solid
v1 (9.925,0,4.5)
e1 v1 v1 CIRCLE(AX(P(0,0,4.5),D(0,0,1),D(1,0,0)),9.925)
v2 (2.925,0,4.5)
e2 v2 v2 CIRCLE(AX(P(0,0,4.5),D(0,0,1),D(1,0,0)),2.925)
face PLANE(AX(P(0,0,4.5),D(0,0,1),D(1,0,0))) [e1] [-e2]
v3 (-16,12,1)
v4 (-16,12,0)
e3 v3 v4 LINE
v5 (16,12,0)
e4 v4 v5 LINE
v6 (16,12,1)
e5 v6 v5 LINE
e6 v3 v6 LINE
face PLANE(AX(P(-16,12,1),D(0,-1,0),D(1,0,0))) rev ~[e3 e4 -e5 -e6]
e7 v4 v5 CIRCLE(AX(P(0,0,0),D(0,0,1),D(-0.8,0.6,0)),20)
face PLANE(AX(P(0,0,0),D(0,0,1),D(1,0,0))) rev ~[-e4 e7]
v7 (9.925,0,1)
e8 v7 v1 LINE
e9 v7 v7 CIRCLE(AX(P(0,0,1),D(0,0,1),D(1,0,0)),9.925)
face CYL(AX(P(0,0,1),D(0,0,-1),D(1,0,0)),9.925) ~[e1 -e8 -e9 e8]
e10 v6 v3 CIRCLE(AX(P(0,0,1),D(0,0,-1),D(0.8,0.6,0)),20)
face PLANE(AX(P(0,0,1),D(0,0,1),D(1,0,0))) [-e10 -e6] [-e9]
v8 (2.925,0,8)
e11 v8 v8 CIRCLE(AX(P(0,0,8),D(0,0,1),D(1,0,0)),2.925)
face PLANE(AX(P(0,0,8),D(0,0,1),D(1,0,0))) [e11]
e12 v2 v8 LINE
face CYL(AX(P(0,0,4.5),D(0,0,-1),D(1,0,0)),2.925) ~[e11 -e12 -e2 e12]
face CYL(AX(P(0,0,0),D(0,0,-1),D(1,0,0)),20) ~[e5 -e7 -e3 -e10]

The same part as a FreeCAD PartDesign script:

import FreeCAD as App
import Part
import Sketcher

V = App.Vector
Q = App.Units.Quantity


def add_polygon(sketch, points):
    """Adds a closed chain of lines whose ends are joined by coincident constraints."""
    first, n = sketch.GeometryCount, len(points)
    for a, b in zip(points, points[1:] + points[:1]):
        sketch.addGeometry(Part.LineSegment(App.Vector(*a, 0), App.Vector(*b, 0)), False)
    for i in range(n):
        sketch.addConstraint(Sketcher.Constraint("Coincident", first + i, 2, first + (i + 1) % n, 1))

doc = App.newDocument("Part")
params = doc.addObject("Spreadsheet::Sheet", "Params")
for row, (alias, value) in enumerate([
    ("sketch1_diameter", "40 mm"),
    ("pad1_length", "1 mm"),
    ("sketch2_diameter", "19.85 mm"),
    ("pad2_length", "3.5 mm"),
    ("sketch3_diameter", "5.85 mm"),
    ("pad3_length", "3.5 mm"),
    ("sketch4_width", "32 mm"),
    ("sketch4_height", "9 mm"),
    ("pocket1_length", "25 mm"),
], start=1):
    params.set(f"A{row}", alias)
    params.set(f"B{row}", "=" + value)
    params.setAlias(f"B{row}", alias)

body = doc.addObject("PartDesign::Body", "Body")

# Sketch on XY plane
sketch1 = doc.addObject("Sketcher::SketchObject", "Sketch")
body.addObject(sketch1)
sketch1.AttachmentSupport = (doc.XY_Plane, [""])
sketch1.MapMode = "FlatFace"
sketch1.addGeometry(Part.Circle(V(0, 0, 0), V(0, 0, 1), 20), False)
sketch1.addConstraint(Sketcher.Constraint("Coincident", 0, 3, -1, 1))
sketch1.addConstraint(Sketcher.Constraint("Diameter", 0, Q("40 mm")))
sketch1.setExpression("Constraints[1]", "Params.sketch1_diameter")
pad1 = doc.addObject("PartDesign::Pad", "Pad")
body.addObject(pad1)
pad1.Profile = sketch1
pad1.setExpression("Length", "Params.pad1_length")

# Sketch on XY plane
sketch2 = doc.addObject("Sketcher::SketchObject", "Sketch001")
body.addObject(sketch2)
sketch2.AttachmentSupport = (doc.XY_Plane, [""])
sketch2.MapMode = "FlatFace"
sketch2.AttachmentOffset = App.Placement(V(0, 0, 1), App.Rotation())
sketch2.addGeometry(Part.Circle(V(0, 0, 0), V(0, 0, 1), 9.925), False)
sketch2.addConstraint(Sketcher.Constraint("Coincident", 0, 3, -1, 1))
sketch2.addConstraint(Sketcher.Constraint("Diameter", 0, Q("19.85 mm")))
sketch2.setExpression("Constraints[1]", "Params.sketch2_diameter")
pad2 = doc.addObject("PartDesign::Pad", "Pad001")
body.addObject(pad2)
pad2.Profile = sketch2
pad2.setExpression("Length", "Params.pad2_length")

# Sketch on XY plane
sketch3 = doc.addObject("Sketcher::SketchObject", "Sketch002")
body.addObject(sketch3)
sketch3.AttachmentSupport = (doc.XY_Plane, [""])
sketch3.MapMode = "FlatFace"
sketch3.AttachmentOffset = App.Placement(V(0, 0, 4.5), App.Rotation())
sketch3.addGeometry(Part.Circle(V(0, 0, 0), V(0, 0, 1), 2.925), False)
sketch3.addConstraint(Sketcher.Constraint("Coincident", 0, 3, -1, 1))
sketch3.addConstraint(Sketcher.Constraint("Diameter", 0, Q("5.85 mm")))
sketch3.setExpression("Constraints[1]", "Params.sketch3_diameter")
pad3 = doc.addObject("PartDesign::Pad", "Pad002")
body.addObject(pad3)
pad3.Profile = sketch3
pad3.setExpression("Length", "Params.pad3_length")

# Sketch on XY plane
sketch4 = doc.addObject("Sketcher::SketchObject", "Sketch003")
body.addObject(sketch4)
sketch4.AttachmentSupport = (doc.XY_Plane, [""])
sketch4.MapMode = "FlatFace"
sketch4.AttachmentOffset = App.Placement(V(0, 0, 1), App.Rotation())
add_polygon(sketch4, [(16, 12), (16, 21), (-16, 21), (-16, 12)])  # lines 0-3
sketch4.addConstraint(Sketcher.Constraint("Vertical", 0))
sketch4.addConstraint(Sketcher.Constraint("Horizontal", 1))
sketch4.addConstraint(Sketcher.Constraint("Vertical", 2))
sketch4.addConstraint(Sketcher.Constraint("Horizontal", 3))
sketch4.addConstraint(Sketcher.Constraint("DistanceX", 1, 2, 1, 1, Q("32 mm")))
sketch4.addConstraint(Sketcher.Constraint("DistanceY", 0, 1, 0, 2, Q("9 mm")))
sketch4.addConstraint(Sketcher.Constraint("DistanceX", -1, 1, 0, 2, Q("16 mm")))
sketch4.addConstraint(Sketcher.Constraint("DistanceY", -1, 1, 0, 2, Q("21 mm")))
sketch4.setExpression("Constraints[8]", "Params.sketch4_width")
sketch4.setExpression("Constraints[9]", "Params.sketch4_height")
pocket1 = doc.addObject("PartDesign::Pocket", "Pocket")
body.addObject(pocket1)
pocket1.Profile = sketch4
pocket1.setExpression("Length", "Params.pocket1_length")

doc.recompute()
